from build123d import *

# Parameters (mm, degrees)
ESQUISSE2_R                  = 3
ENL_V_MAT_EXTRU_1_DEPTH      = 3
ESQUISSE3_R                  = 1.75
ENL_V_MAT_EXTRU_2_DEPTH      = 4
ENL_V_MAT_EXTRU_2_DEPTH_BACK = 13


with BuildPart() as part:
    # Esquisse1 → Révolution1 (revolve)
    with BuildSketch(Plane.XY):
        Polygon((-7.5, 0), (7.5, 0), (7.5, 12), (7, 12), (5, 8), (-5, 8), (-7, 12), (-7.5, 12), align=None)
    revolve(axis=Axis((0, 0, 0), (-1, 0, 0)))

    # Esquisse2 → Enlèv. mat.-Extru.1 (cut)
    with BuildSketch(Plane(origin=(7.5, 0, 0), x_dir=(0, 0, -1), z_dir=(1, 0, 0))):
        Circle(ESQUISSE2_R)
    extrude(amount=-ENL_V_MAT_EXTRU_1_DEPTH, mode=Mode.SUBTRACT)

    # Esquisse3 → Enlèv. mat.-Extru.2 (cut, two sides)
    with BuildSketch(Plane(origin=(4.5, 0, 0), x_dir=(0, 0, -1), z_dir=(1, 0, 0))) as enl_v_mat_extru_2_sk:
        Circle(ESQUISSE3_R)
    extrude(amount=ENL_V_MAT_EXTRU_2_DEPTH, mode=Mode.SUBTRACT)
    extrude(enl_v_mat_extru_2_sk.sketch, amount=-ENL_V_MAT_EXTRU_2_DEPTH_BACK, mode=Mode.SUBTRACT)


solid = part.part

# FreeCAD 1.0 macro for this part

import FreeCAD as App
import Part
import Sketcher
from FreeCAD import Vector
Q = App.Units.Quantity

doc = App.newDocument("Part")
body = doc.addObject("PartDesign::Body", "Body")

# Sketch on XY plane
sketch1 = body.newObject("Sketcher::SketchObject", "Sketch")
sketch1.AttachmentSupport = (doc.getObject("XY_Plane"), [""])
sketch1.MapMode = "FlatFace"
sketch1.addGeometry([
    Part.LineSegment(Vector(-7.5, 0, 0), Vector(7.5, 0, 0)),  # 0
    Part.LineSegment(Vector(7.5, 0, 0), Vector(7.5, 12, 0)),  # 1
    Part.LineSegment(Vector(7.5, 12, 0), Vector(7, 12, 0)),  # 2
    Part.LineSegment(Vector(7, 12, 0), Vector(5, 8, 0)),  # 3
    Part.LineSegment(Vector(5, 8, 0), Vector(-5, 8, 0)),  # 4
    Part.LineSegment(Vector(-5, 8, 0), Vector(-7, 12, 0)),  # 5
    Part.LineSegment(Vector(-7, 12, 0), Vector(-7.5, 12, 0)),  # 6
    Part.LineSegment(Vector(-7.5, 12, 0), Vector(-7.5, 0, 0)),  # 7
], False)
sketch1.addConstraint([
    Sketcher.Constraint("Coincident", 0, 2, 1, 1),
    Sketcher.Constraint("Coincident", 1, 2, 2, 1),
    Sketcher.Constraint("Coincident", 2, 2, 3, 1),
    Sketcher.Constraint("Coincident", 3, 2, 4, 1),
    Sketcher.Constraint("Coincident", 4, 2, 5, 1),
    Sketcher.Constraint("Coincident", 5, 2, 6, 1),
    Sketcher.Constraint("Coincident", 6, 2, 7, 1),
    Sketcher.Constraint("Coincident", 7, 2, 0, 1),
    Sketcher.Constraint("Horizontal", 0),
    Sketcher.Constraint("Vertical", 1),
    Sketcher.Constraint("Horizontal", 2),
    Sketcher.Constraint("Horizontal", 4),
    Sketcher.Constraint("Horizontal", 6),
    Sketcher.Constraint("Vertical", 7),
    Sketcher.Constraint("Symmetric", 0, 2, 7, 2, -1, 1),
    Sketcher.Constraint("Symmetric", 2, 2, 5, 2, -2),
    Sketcher.Constraint("Equal", 3, 5),
    Sketcher.Constraint("DistanceX", 0, 1, 0, 2, Q("15 mm")),
    Sketcher.Constraint("DistanceX", 4, 2, 4, 1, Q("10 mm")),
    Sketcher.Constraint("DistanceY", 1, 1, 1, 2, Q("12 mm")),
    Sketcher.Constraint("DistanceX", 2, 2, 2, 1, Q("0.5 mm")),
    Sketcher.Constraint("DistanceY", -1, 1, 3, 2, Q("8 mm")),
])
revolution = body.newObject("PartDesign::Revolution", "Revolution")
revolution.Profile = sketch1
revolution.ReferenceAxis = (sketch1, ["H_Axis"])
revolution.Angle = 360

# Sketch on YZ plane
sketch2 = body.newObject("Sketcher::SketchObject", "Sketch001")
sketch2.AttachmentSupport = (doc.getObject("YZ_Plane"), [""])
sketch2.MapMode = "FlatFace"
sketch2.AttachmentOffset = App.Placement(Vector(0, 0, 7.5), App.Rotation())
sketch2.addGeometry(Part.Circle(Vector(0, 0, 0), Vector(0, 0, 1), 3), False)
sketch2.addConstraint([
    Sketcher.Constraint("Coincident", 0, 3, -1, 1),
    Sketcher.Constraint("Diameter", 0, Q("6 mm")),
])
pocket1 = body.newObject("PartDesign::Pocket", "Pocket")
pocket1.Profile = sketch2
pocket1.Length = 3

# Sketch on YZ plane
sketch3 = body.newObject("Sketcher::SketchObject", "Sketch002")
sketch3.AttachmentSupport = (doc.getObject("YZ_Plane"), [""])
sketch3.MapMode = "FlatFace"
sketch3.AttachmentOffset = App.Placement(Vector(0, 0, 4.5), App.Rotation())
sketch3.addGeometry(Part.Circle(Vector(0, 0, 0), Vector(0, 0, 1), 1.8), False)
sketch3.addConstraint([
    Sketcher.Constraint("Coincident", 0, 3, -1, 1),
    Sketcher.Constraint("Diameter", 0, Q("3.5 mm")),
])
pocket2 = body.newObject("PartDesign::Pocket", "Pocket001")
pocket2.Profile = sketch3
pocket2.Type = "ThroughAll"
pocket2.Midplane = True

doc.recompute()
